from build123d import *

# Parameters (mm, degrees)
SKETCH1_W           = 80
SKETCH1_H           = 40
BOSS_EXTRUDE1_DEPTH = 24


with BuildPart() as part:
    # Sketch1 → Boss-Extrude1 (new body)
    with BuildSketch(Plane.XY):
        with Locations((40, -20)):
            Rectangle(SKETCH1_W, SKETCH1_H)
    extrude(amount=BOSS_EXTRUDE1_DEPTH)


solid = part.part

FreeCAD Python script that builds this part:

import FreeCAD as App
import Part
import Sketcher


def add_polygon(sketch, points):
    """Adds a closed chain of lines whose ends are joined by coincident constraints."""
    first, n = sketch.GeometryCount, len(points)
    for a, b in zip(points, points[1:] + points[:1]):
        sketch.addGeometry(Part.LineSegment(App.Vector(*a, 0), App.Vector(*b, 0)), False)
    for i in range(n):
        sketch.addConstraint(Sketcher.Constraint("Coincident", first + i, 2, first + (i + 1) % n, 1))

doc = App.newDocument("Part")
body = doc.addObject("PartDesign::Body", "Body")

sketch1 = body.newObject("Sketcher::SketchObject", "Sketch")
sketch1.AttachmentSupport = (doc.getObject("XY_Plane"), [""])
sketch1.MapMode = "FlatFace"
add_polygon(sketch1, [(0, 0), (0, -40), (80, -40), (80, 0)])
sketch1.addConstraint(Sketcher.Constraint("Vertical", 0))
sketch1.addConstraint(Sketcher.Constraint("Horizontal", 1))
sketch1.addConstraint(Sketcher.Constraint("Vertical", 2))
sketch1.addConstraint(Sketcher.Constraint("Horizontal", 3))
sketch1.addConstraint(Sketcher.Constraint("Coincident", 3, 2, -1, 1))
sketch1.addConstraint(Sketcher.Constraint("DistanceX", 1, 1, 1, 2, 80.0))
sketch1.addConstraint(Sketcher.Constraint("DistanceY", 0, 2, 0, 1, 40.0))
pad1 = body.newObject("PartDesign::Pad", "Pad")
pad1.Profile = sketch1
pad1.Length = 24

doc.recompute()
